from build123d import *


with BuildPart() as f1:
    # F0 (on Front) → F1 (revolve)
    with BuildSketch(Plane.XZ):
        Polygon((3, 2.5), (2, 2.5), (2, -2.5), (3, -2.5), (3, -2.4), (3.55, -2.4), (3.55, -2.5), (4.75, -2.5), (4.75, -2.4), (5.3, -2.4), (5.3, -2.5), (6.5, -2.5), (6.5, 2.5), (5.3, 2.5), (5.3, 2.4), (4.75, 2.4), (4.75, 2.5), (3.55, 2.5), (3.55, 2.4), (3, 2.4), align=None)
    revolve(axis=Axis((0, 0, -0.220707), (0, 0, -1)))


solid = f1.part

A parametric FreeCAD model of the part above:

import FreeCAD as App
import Part
import Sketcher
from FreeCAD import Vector

doc = App.newDocument("Part")
body = doc.addObject("PartDesign::Body", "Body")

sketch1 = body.newObject("Sketcher::SketchObject", "Sketch")
sketch1.AttachmentSupport = (doc.getObject("XZ_Plane"), [""])
sketch1.MapMode = "FlatFace"
sketch1.addGeometry(Part.LineSegment(Vector(3, 2.5, 0), Vector(2, 2.5, 0)), False)
sketch1.addGeometry(Part.LineSegment(Vector(2, 2.5, 0), Vector(2, -2.5, 0)), False)
sketch1.addGeometry(Part.LineSegment(Vector(2, -2.5, 0), Vector(3, -2.5, 0)), False)
sketch1.addGeometry(Part.LineSegment(Vector(3, -2.5, 0), Vector(3, -2.4, 0)), False)
sketch1.addGeometry(Part.LineSegment(Vector(3, -2.4, 0), Vector(3.55, -2.4, 0)), False)
sketch1.addGeometry(Part.LineSegment(Vector(3.55, -2.4, 0), Vector(3.55, -2.5, 0)), False)
sketch1.addGeometry(Part.LineSegment(Vector(3.55, -2.5, 0), Vector(4.75, -2.5, 0)), False)
sketch1.addGeometry(Part.LineSegment(Vector(4.75, -2.5, 0), Vector(4.75, -2.4, 0)), False)
sketch1.addGeometry(Part.LineSegment(Vector(4.75, -2.4, 0), Vector(5.3, -2.4, 0)), False)
sketch1.addGeometry(Part.LineSegment(Vector(5.3, -2.4, 0), Vector(5.3, -2.5, 0)), False)
sketch1.addGeometry(Part.LineSegment(Vector(5.3, -2.5, 0), Vector(6.5, -2.5, 0)), False)
sketch1.addGeometry(Part.LineSegment(Vector(6.5, -2.5, 0), Vector(6.5, 2.5, 0)), False)
sketch1.addGeometry(Part.LineSegment(Vector(6.5, 2.5, 0), Vector(5.3, 2.5, 0)), False)
sketch1.addGeometry(Part.LineSegment(Vector(5.3, 2.5, 0), Vector(5.3, 2.4, 0)), False)
sketch1.addGeometry(Part.LineSegment(Vector(5.3, 2.4, 0), Vector(4.75, 2.4, 0)), False)
sketch1.addGeometry(Part.LineSegment(Vector(4.75, 2.4, 0), Vector(4.75, 2.5, 0)), False)
sketch1.addGeometry(Part.LineSegment(Vector(4.75, 2.5, 0), Vector(3.55, 2.5, 0)), False)
sketch1.addGeometry(Part.LineSegment(Vector(3.55, 2.5, 0), Vector(3.55, 2.4, 0)), False)
sketch1.addGeometry(Part.LineSegment(Vector(3.55, 2.4, 0), Vector(3, 2.4, 0)), False)
sketch1.addGeometry(Part.LineSegment(Vector(3, 2.4, 0), Vector(3, 2.5, 0)), False)
sketch1.addConstraint(Sketcher.Constraint("Coincident", 0, 2, 1, 1))
sketch1.addConstraint(Sketcher.Constraint("Coincident", 1, 2, 2, 1))
sketch1.addConstraint(Sketcher.Constraint("Coincident", 2, 2, 3, 1))
sketch1.addConstraint(Sketcher.Constraint("Coincident", 3, 2, 4, 1))
sketch1.addConstraint(Sketcher.Constraint("Coincident", 4, 2, 5, 1))
sketch1.addConstraint(Sketcher.Constraint("Coincident", 5, 2, 6, 1))
sketch1.addConstraint(Sketcher.Constraint("Coincident", 6, 2, 7, 1))
sketch1.addConstraint(Sketcher.Constraint("Coincident", 7, 2, 8, 1))
sketch1.addConstraint(Sketcher.Constraint("Coincident", 8, 2, 9, 1))
sketch1.addConstraint(Sketcher.Constraint("Coincident", 9, 2, 10, 1))
sketch1.addConstraint(Sketcher.Constraint("Coincident", 10, 2, 11, 1))
sketch1.addConstraint(Sketcher.Constraint("Coincident", 11, 2, 12, 1))
sketch1.addConstraint(Sketcher.Constraint("Coincident", 12, 2, 13, 1))
sketch1.addConstraint(Sketcher.Constraint("Coincident", 13, 2, 14, 1))
sketch1.addConstraint(Sketcher.Constraint("Coincident", 14, 2, 15, 1))
sketch1.addConstraint(Sketcher.Constraint("Coincident", 15, 2, 16, 1))
sketch1.addConstraint(Sketcher.Constraint("Coincident", 16, 2, 17, 1))
sketch1.addConstraint(Sketcher.Constraint("Coincident", 17, 2, 18, 1))
sketch1.addConstraint(Sketcher.Constraint("Coincident", 18, 2, 19, 1))
sketch1.addConstraint(Sketcher.Constraint("Coincident", 19, 2, 0, 1))
sketch1.addConstraint(Sketcher.Constraint("Horizontal", 0))
sketch1.addConstraint(Sketcher.Constraint("Vertical", 1))
sketch1.addConstraint(Sketcher.Constraint("Horizontal", 2))
sketch1.addConstraint(Sketcher.Constraint("Vertical", 3))
sketch1.addConstraint(Sketcher.Constraint("Horizontal", 4))
sketch1.addConstraint(Sketcher.Constraint("Vertical", 5))
sketch1.addConstraint(Sketcher.Constraint("Horizontal", 6))
sketch1.addConstraint(Sketcher.Constraint("Vertical", 7))
sketch1.addConstraint(Sketcher.Constraint("Horizontal", 8))
sketch1.addConstraint(Sketcher.Constraint("Vertical", 9))
sketch1.addConstraint(Sketcher.Constraint("Horizontal", 10))
sketch1.addConstraint(Sketcher.Constraint("Vertical", 11))
sketch1.addConstraint(Sketcher.Constraint("Horizontal", 12))
sketch1.addConstraint(Sketcher.Constraint("Vertical", 13))
sketch1.addConstraint(Sketcher.Constraint("Horizontal", 14))
sketch1.addConstraint(Sketcher.Constraint("Vertical", 15))
sketch1.addConstraint(Sketcher.Constraint("Horizontal", 16))
sketch1.addConstraint(Sketcher.Constraint("Vertical", 17))
sketch1.addConstraint(Sketcher.Constraint("Horizontal", 18))
sketch1.addConstraint(Sketcher.Constraint("Vertical", 19))
sketch1.addConstraint(Sketcher.Constraint("Symmetric", 9, 2, 12, 2, -1))
sketch1.addConstraint(Sketcher.Constraint("Symmetric", 7, 2, 14, 2, -1))
sketch1.addConstraint(Sketcher.Constraint("Symmetric", 5, 2, 16, 2, -1))
sketch1.addConstraint(Sketcher.Constraint("Symmetric", 3, 2, 18, 2, -1))
sketch1.addConstraint(Sketcher.Constraint("Horizontal", 2, 2, 5, 2))
sketch1.addConstraint(Sketcher.Constraint("Horizontal", 4, 2, 7, 2))
sketch1.addConstraint(Sketcher.Constraint("Horizontal", 6, 2, 9, 2))
sketch1.addConstraint(Sketcher.Constraint("Horizontal", 0, 2, 11, 2))
sketch1.addConstraint(Sketcher.Constraint("Equal", 4, 8))
sketch1.addConstraint(Sketcher.Constraint("Equal", 6, 10))
sketch1.addConstraint(Sketcher.Constraint("DistanceX", 0, 2, 0, 1, 1.0))
sketch1.addConstraint(Sketcher.Constraint("DistanceY", 1, 2, 1, 1, 5.0))
sketch1.addConstraint(Sketcher.Constraint("DistanceX", 6, 1, 6, 2, 1.2))
sketch1.addConstraint(Sketcher.Constraint("DistanceY", 3, 1, 3, 2, 0.1))
sketch1.addConstraint(Sketcher.Constraint("DistanceX", -1, 1, 0, 2, 2.0))
sketch1.addConstraint(Sketcher.Constraint("DistanceX", 4, 1, 4, 2, 0.55))
revolution = body.newObject("PartDesign::Revolution", "Revolution")
revolution.Profile = sketch1
revolution.ReferenceAxis = (sketch1, ["V_Axis"])
revolution.Angle = 360

doc.recompute()
